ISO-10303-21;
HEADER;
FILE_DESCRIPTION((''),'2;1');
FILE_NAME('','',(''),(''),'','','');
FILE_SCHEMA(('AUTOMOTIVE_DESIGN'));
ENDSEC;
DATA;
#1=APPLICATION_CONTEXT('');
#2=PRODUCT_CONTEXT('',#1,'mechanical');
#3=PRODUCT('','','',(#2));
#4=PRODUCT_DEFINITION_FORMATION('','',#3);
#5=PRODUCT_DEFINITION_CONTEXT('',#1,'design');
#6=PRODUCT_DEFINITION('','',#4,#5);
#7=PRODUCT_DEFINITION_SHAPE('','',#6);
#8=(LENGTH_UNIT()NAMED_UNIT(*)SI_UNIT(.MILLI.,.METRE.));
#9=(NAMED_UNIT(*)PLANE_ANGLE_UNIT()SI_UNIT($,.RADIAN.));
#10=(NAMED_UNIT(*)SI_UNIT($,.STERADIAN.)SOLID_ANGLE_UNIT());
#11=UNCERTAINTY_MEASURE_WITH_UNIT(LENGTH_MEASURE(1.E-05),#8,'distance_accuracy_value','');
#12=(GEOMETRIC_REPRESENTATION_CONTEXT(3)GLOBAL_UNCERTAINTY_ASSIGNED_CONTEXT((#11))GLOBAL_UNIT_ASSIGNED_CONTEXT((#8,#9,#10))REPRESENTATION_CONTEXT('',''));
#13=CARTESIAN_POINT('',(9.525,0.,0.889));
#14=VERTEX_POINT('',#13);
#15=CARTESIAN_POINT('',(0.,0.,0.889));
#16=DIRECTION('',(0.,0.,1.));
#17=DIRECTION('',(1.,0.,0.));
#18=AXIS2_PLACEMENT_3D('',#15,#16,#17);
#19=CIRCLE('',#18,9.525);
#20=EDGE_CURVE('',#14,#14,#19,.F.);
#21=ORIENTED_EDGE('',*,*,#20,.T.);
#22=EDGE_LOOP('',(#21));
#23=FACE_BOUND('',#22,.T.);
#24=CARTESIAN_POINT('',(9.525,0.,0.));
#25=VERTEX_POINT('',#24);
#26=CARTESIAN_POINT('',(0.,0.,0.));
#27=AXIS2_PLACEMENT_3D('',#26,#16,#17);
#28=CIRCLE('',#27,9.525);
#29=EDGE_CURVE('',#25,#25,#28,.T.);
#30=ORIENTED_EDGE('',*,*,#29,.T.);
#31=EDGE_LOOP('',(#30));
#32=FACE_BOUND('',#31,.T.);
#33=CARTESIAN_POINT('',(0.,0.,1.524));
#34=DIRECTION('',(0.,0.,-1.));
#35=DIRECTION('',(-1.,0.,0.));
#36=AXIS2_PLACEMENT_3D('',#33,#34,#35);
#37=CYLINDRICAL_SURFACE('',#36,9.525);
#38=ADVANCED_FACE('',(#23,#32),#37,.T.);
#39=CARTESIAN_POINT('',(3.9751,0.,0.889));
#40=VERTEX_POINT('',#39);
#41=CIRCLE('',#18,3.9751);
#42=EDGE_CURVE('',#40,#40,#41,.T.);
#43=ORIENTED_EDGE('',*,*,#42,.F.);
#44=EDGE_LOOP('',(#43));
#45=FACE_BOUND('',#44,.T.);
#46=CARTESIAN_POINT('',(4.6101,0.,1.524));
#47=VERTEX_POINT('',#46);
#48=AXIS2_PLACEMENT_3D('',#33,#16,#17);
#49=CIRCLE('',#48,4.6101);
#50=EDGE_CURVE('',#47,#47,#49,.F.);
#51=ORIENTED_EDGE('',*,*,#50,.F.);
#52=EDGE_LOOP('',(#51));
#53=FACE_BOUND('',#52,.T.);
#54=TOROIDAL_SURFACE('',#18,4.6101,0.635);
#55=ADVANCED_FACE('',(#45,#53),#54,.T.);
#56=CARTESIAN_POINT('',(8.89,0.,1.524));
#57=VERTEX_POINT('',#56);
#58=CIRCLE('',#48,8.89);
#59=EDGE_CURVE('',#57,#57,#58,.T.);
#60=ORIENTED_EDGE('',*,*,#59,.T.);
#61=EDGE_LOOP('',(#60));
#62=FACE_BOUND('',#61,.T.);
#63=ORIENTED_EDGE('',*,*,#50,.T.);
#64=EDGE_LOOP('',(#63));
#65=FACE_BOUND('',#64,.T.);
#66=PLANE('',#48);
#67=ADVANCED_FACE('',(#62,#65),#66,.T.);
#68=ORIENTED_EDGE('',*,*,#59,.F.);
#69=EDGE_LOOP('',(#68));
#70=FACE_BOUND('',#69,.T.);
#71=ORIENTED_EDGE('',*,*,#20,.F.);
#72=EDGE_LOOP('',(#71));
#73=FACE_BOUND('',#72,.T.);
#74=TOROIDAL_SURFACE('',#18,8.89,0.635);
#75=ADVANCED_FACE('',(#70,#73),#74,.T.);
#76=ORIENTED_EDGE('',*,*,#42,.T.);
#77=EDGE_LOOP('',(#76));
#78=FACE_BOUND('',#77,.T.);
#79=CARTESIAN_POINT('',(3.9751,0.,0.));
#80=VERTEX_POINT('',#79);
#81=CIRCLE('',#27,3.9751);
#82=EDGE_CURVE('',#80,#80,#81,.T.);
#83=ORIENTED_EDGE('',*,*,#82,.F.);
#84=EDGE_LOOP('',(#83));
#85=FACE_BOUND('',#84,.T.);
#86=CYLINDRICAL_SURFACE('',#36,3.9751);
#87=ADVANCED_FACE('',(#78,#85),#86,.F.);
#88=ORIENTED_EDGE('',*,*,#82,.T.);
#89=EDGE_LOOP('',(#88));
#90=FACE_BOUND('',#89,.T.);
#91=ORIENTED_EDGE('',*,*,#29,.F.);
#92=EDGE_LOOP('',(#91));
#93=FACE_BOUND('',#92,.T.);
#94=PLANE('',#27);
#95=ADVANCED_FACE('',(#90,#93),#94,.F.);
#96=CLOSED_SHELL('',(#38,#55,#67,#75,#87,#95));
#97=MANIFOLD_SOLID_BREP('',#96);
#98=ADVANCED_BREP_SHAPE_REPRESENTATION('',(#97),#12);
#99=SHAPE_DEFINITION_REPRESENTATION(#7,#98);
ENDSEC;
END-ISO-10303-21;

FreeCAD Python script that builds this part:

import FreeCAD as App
import Part
import Sketcher

V = App.Vector
Q = App.Units.Quantity


def edges_at(feature, points):
    """Names of the edges that pass closest to the given points."""
    edges = feature.Shape.Edges
    near = lambda p: min(range(len(edges)), key=lambda i: edges[i].distToShape(Part.Vertex(*p))[0])
    return sorted({f"Edge{near(p) + 1}" for p in points})

doc = App.newDocument("Part")
params = doc.addObject("Spreadsheet::Sheet", "Params")
for row, (alias, value) in enumerate([
    ("sketch1_diameter", "0.75 in"),
    ("sketch1_diameter2", "0.313 in"),
    ("pad1_length", "0.06 in"),
    ("fillet_radius", "0.025 in"),
], start=1):
    params.set(f"A{row}", alias)
    params.set(f"B{row}", "=" + value)
    params.setAlias(f"B{row}", alias)

body = doc.addObject("PartDesign::Body", "Body")

sketch1 = body.newObject("Sketcher::SketchObject", "Sketch")
sketch1.AttachmentSupport = (doc.getObject("XY_Plane"), [""])
sketch1.MapMode = "FlatFace"
sketch1.addGeometry([
    Part.Circle(V(0, 0, 0), V(0, 0, 1), 9.5),
    Part.Circle(V(0, 0, 0), V(0, 0, 1), 4),
], False)
sketch1.addConstraint([
    Sketcher.Constraint("Coincident", 0, 3, -1, 1),
    Sketcher.Constraint("Coincident", 1, 3, -1, 1),
    Sketcher.Constraint("Diameter", 0, Q("0.75 in")),
    Sketcher.Constraint("Diameter", 1, Q("0.313 in")),
])
sketch1.setExpression("Constraints[2]", "Params.sketch1_diameter")
sketch1.setExpression("Constraints[3]", "Params.sketch1_diameter2")
pad1 = body.newObject("PartDesign::Pad", "Pad")
pad1.Profile = sketch1
pad1.setExpression("Length", "Params.pad1_length")
doc.recompute()

fillet = body.newObject("PartDesign::Fillet", "Fillet")
fillet.Base = (pad1, edges_at(pad1, [(-9.525, 0, 1.524), (-3.975, 0, 1.524)]))
fillet.setExpression("Radius", "Params.fillet_radius")

doc.recompute()
